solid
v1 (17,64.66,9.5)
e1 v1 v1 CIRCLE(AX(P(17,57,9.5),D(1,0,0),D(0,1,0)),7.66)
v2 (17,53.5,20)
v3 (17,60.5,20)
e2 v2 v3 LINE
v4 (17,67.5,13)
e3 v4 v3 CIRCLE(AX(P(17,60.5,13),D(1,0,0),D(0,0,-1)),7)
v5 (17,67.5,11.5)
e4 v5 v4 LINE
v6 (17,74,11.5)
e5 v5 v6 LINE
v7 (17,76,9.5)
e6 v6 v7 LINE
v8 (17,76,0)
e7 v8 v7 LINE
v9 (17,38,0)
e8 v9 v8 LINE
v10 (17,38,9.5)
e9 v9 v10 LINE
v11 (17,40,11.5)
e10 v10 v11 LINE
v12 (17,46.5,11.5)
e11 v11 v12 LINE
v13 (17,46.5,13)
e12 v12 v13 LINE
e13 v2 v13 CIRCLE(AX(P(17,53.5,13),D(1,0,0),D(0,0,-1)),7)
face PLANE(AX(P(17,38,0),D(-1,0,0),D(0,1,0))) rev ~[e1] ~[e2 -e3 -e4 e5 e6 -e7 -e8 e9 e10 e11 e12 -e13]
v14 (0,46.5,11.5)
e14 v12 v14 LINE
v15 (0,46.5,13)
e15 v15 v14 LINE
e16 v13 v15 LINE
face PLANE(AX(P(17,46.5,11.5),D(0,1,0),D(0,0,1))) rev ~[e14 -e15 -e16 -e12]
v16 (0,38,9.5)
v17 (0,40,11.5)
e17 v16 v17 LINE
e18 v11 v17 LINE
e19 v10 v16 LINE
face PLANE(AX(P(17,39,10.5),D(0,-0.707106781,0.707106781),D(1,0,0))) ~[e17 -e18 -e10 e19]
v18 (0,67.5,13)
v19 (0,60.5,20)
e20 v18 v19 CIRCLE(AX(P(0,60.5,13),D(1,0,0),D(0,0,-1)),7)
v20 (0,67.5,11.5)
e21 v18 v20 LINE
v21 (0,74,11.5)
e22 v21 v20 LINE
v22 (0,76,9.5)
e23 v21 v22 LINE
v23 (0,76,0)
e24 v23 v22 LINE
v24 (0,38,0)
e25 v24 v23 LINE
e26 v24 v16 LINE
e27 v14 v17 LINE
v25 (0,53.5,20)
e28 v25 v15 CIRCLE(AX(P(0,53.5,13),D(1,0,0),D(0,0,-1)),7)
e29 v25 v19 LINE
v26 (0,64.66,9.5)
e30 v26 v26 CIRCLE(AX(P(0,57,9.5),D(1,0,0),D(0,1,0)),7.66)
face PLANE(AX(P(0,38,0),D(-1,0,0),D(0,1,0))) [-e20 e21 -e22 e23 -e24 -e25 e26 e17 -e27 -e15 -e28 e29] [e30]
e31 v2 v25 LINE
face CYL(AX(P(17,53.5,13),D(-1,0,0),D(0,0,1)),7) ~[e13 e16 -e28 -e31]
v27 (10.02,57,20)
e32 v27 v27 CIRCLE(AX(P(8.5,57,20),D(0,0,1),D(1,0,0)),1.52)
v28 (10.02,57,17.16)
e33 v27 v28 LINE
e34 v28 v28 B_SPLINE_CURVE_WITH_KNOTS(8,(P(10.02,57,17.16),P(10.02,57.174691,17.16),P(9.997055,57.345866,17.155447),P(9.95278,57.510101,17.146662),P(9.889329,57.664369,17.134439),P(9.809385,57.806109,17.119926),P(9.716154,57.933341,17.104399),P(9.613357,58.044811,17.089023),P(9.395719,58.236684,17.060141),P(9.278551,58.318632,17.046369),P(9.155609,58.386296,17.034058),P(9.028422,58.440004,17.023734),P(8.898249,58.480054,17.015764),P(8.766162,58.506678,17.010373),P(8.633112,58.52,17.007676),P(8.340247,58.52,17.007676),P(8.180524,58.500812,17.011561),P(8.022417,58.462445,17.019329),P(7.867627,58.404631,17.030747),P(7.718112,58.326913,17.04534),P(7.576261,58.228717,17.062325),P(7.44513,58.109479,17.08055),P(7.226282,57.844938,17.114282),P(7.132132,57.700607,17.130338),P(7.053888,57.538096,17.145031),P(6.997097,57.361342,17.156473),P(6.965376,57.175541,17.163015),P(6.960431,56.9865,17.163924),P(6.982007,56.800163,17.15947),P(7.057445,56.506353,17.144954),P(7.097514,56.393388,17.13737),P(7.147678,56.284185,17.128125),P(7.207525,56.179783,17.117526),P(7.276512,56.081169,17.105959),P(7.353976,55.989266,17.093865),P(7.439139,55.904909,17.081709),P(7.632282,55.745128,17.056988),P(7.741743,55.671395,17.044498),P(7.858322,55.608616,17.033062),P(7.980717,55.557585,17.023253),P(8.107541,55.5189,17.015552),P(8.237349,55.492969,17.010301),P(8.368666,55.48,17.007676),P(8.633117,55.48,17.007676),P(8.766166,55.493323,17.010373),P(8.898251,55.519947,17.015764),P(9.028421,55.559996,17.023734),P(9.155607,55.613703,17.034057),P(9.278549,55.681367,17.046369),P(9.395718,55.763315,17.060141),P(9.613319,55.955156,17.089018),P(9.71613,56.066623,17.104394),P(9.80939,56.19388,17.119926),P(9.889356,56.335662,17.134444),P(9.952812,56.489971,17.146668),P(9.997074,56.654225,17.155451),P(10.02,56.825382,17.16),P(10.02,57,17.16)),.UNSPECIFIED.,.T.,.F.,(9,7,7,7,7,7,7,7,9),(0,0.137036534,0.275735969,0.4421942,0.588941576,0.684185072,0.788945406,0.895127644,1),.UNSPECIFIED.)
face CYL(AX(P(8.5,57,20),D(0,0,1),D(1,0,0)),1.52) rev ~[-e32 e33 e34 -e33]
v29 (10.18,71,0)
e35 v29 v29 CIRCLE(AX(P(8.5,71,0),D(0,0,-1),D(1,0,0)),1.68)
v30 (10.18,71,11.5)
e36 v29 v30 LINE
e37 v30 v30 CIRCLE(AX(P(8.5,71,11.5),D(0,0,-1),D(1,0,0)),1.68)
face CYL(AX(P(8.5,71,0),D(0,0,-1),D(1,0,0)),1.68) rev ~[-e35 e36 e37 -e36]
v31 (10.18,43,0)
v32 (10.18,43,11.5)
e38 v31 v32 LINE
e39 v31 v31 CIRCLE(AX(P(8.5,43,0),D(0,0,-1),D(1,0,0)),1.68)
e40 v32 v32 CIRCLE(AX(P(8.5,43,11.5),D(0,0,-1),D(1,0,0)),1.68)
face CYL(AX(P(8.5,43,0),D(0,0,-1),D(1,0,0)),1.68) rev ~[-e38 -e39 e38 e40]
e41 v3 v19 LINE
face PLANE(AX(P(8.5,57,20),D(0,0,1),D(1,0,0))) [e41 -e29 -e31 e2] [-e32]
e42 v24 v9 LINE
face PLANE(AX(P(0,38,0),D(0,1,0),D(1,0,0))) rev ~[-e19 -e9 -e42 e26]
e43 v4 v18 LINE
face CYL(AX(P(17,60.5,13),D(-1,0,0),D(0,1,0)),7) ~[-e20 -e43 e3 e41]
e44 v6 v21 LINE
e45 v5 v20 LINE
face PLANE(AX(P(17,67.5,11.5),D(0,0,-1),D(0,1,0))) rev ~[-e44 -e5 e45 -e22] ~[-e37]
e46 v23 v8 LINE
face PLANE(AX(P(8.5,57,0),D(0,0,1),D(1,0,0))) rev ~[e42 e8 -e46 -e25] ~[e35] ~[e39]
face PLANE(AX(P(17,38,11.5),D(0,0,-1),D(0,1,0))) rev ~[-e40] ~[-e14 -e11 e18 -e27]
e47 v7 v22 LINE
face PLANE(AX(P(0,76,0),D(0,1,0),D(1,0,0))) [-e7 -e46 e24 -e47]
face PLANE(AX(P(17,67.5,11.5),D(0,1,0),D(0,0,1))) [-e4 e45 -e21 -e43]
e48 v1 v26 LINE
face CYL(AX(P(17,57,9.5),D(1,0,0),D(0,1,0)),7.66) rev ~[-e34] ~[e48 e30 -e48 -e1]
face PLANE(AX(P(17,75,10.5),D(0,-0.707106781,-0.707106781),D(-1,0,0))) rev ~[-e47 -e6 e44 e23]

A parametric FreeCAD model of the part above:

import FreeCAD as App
import Part
import Sketcher

V = App.Vector


def edges_at(feature, points):
    """Names of the edges that pass closest to the given points."""
    edges = feature.Shape.Edges
    near = lambda p: min(range(len(edges)), key=lambda i: edges[i].distToShape(Part.Vertex(*p))[0])
    return sorted({f"Edge{near(p) + 1}" for p in points})

doc = App.newDocument("Part")
body = doc.addObject("PartDesign::Body", "Body")

# Sketch on XY plane
sketch1 = body.newObject("Sketcher::SketchObject", "Sketch")
sketch1.AttachmentSupport = (doc.getObject("XY_Plane"), [""])
sketch1.MapMode = "FlatFace"
sketch1.addGeometry(Part.LineSegment(V(0, 76, 0), V(0, 38, 0)), False)
sketch1.addGeometry(Part.LineSegment(V(0, 38, 0), V(17, 38, 0)), False)
sketch1.addGeometry(Part.LineSegment(V(17, 38, 0), V(17, 76, 0)), False)
sketch1.addGeometry(Part.LineSegment(V(17, 76, 0), V(0, 76, 0)), False)
sketch1.addConstraint(Sketcher.Constraint("Coincident", 0, 2, 1, 1))
sketch1.addConstraint(Sketcher.Constraint("Coincident", 1, 2, 2, 1))
sketch1.addConstraint(Sketcher.Constraint("Coincident", 2, 2, 3, 1))
sketch1.addConstraint(Sketcher.Constraint("Coincident", 3, 2, 0, 1))
sketch1.addConstraint(Sketcher.Constraint("Vertical", 0))
sketch1.addConstraint(Sketcher.Constraint("Horizontal", 1))
sketch1.addConstraint(Sketcher.Constraint("Vertical", 2))
sketch1.addConstraint(Sketcher.Constraint("Horizontal", 3))
sketch1.addConstraint(Sketcher.Constraint("PointOnObject", 0, 2, -2))
sketch1.addConstraint(Sketcher.Constraint("DistanceX", 1, 1, 1, 2, 17.0))
sketch1.addConstraint(Sketcher.Constraint("DistanceY", 0, 2, 0, 1, 38.0))
sketch1.addConstraint(Sketcher.Constraint("DistanceY", -1, 1, 0, 2, 38.0))
pad1 = body.newObject("PartDesign::Pad", "Pad")
pad1.Profile = sketch1
pad1.Length = 20

# Sketch on YZ plane
sketch2 = body.newObject("Sketcher::SketchObject", "Sketch001")
sketch2.AttachmentSupport = (doc.getObject("YZ_Plane"), [""])
sketch2.MapMode = "FlatFace"
sketch2.AttachmentOffset = App.Placement(V(0, 0, 17), App.Rotation())
sketch2.addGeometry(Part.Circle(V(57, 10, 0), V(0, 0, 1), 8), False)
sketch2.addGeometry(Part.LineSegment(V(38, 20, 0), V(38, 12, 0)), False)
sketch2.addGeometry(Part.LineSegment(V(38, 12, 0), V(46, 12, 0)), False)
sketch2.addGeometry(Part.LineSegment(V(46, 12, 0), V(46, 20, 0)), False)
sketch2.addGeometry(Part.LineSegment(V(46, 20, 0), V(38, 20, 0)), False)
sketch2.addGeometry(Part.LineSegment(V(68, 20, 0), V(68, 12, 0)), False)
sketch2.addGeometry(Part.LineSegment(V(68, 12, 0), V(76, 12, 0)), False)
sketch2.addGeometry(Part.LineSegment(V(76, 12, 0), V(76, 20, 0)), False)
sketch2.addGeometry(Part.LineSegment(V(76, 20, 0), V(68, 20, 0)), False)
sketch2.addConstraint(Sketcher.Constraint("Coincident", 1, 2, 2, 1))
sketch2.addConstraint(Sketcher.Constraint("Coincident", 2, 2, 3, 1))
sketch2.addConstraint(Sketcher.Constraint("Coincident", 3, 2, 4, 1))
sketch2.addConstraint(Sketcher.Constraint("Coincident", 4, 2, 1, 1))
sketch2.addConstraint(Sketcher.Constraint("Coincident", 5, 2, 6, 1))
sketch2.addConstraint(Sketcher.Constraint("Coincident", 6, 2, 7, 1))
sketch2.addConstraint(Sketcher.Constraint("Coincident", 7, 2, 8, 1))
sketch2.addConstraint(Sketcher.Constraint("Coincident", 8, 2, 5, 1))
sketch2.addConstraint(Sketcher.Constraint("Vertical", 1))
sketch2.addConstraint(Sketcher.Constraint("Horizontal", 2))
sketch2.addConstraint(Sketcher.Constraint("Vertical", 3))
sketch2.addConstraint(Sketcher.Constraint("Horizontal", 4))
sketch2.addConstraint(Sketcher.Constraint("Vertical", 5))
sketch2.addConstraint(Sketcher.Constraint("Horizontal", 6))
sketch2.addConstraint(Sketcher.Constraint("Vertical", 7))
sketch2.addConstraint(Sketcher.Constraint("Horizontal", 8))
sketch2.addConstraint(Sketcher.Constraint("Horizontal", 2, 2, 5, 2))
sketch2.addConstraint(Sketcher.Constraint("Horizontal", 4, 2, 7, 2))
sketch2.addConstraint(Sketcher.Constraint("Equal", 4, 6))
sketch2.addConstraint(Sketcher.Constraint("Equal", 8, 1))
sketch2.addConstraint(Sketcher.Constraint("Diameter", 0, 15.32))
sketch2.addConstraint(Sketcher.Constraint("DistanceX", 2, 1, 2, 2, 8.5))
sketch2.addConstraint(Sketcher.Constraint("DistanceX", -1, 1, 0, 3, 57.0))
sketch2.addConstraint(Sketcher.Constraint("DistanceX", -1, 1, 1, 2, 38.0))
sketch2.addConstraint(Sketcher.Constraint("DistanceY", -1, 1, 3, 2, 20.0))
sketch2.addConstraint(Sketcher.Constraint("DistanceX", -1, 1, 6, 2, 76.0))
sketch2.addConstraint(Sketcher.Constraint("DistanceY", 0, 3, 1, 2, 2.0))
pocket1 = body.newObject("PartDesign::Pocket", "Pocket")
pocket1.Profile = sketch2
pocket1.Type = "ThroughAll"

# Sketch on XY plane
sketch3 = body.newObject("Sketcher::SketchObject", "Sketch002")
sketch3.AttachmentSupport = (doc.getObject("XY_Plane"), [""])
sketch3.MapMode = "FlatFace"
sketch3.AttachmentOffset = App.Placement(V(0, 0, 20), App.Rotation())
sketch3.addGeometry(Part.Circle(V(8.5, 57, 0), V(0, 0, 1), 1.5), False)
sketch3.addConstraint(Sketcher.Constraint("Diameter", 0, 3.04))
sketch3.addConstraint(Sketcher.Constraint("DistanceY", -1, 1, 0, 3, 57.0))
sketch3.addConstraint(Sketcher.Constraint("DistanceX", -1, 1, 0, 3, 8.5))
pocket2 = body.newObject("PartDesign::Pocket", "Pocket001")
pocket2.Profile = sketch3
pocket2.Length = 5

# Sketch on XY plane
sketch4 = body.newObject("Sketcher::SketchObject", "Sketch003")
sketch4.AttachmentSupport = (doc.getObject("XY_Plane"), [""])
sketch4.MapMode = "FlatFace"
sketch4.addGeometry(Part.Circle(V(8.5, 71, 0), V(0, 0, 1), 1.7), False)
sketch4.addGeometry(Part.Circle(V(8.5, 43, 0), V(0, 0, 1), 1.7), False)
sketch4.addConstraint(Sketcher.Constraint("Equal", 0, 1))
sketch4.addConstraint(Sketcher.Constraint("Vertical", 0, 3, 1, 3))
sketch4.addConstraint(Sketcher.Constraint("Diameter", 0, 3.36))
sketch4.addConstraint(Sketcher.Constraint("DistanceY", -1, 1, 0, 3, 71.0))
sketch4.addConstraint(Sketcher.Constraint("DistanceY", -1, 1, 1, 3, 43.0))
sketch4.addConstraint(Sketcher.Constraint("DistanceX", -1, 1, 0, 3, 8.5))
pocket3 = body.newObject("PartDesign::Pocket", "Pocket002")
pocket3.Profile = sketch4
pocket3.Length = 13
pocket3.Reversed = True
doc.recompute()

fillet = body.newObject("PartDesign::Fillet", "Fillet")
fillet.Base = (pocket3, edges_at(pocket3, [(8.5, 46.5, 20), (8.5, 67.5, 20)]))
fillet.Radius = 7
doc.recompute()

chamfer = body.newObject("PartDesign::Chamfer", "Chamfer")
chamfer.Base = (fillet, edges_at(fillet, [(8.5, 38, 11.5), (8.5, 76, 11.5)]))
chamfer.Size = 2

doc.recompute()
